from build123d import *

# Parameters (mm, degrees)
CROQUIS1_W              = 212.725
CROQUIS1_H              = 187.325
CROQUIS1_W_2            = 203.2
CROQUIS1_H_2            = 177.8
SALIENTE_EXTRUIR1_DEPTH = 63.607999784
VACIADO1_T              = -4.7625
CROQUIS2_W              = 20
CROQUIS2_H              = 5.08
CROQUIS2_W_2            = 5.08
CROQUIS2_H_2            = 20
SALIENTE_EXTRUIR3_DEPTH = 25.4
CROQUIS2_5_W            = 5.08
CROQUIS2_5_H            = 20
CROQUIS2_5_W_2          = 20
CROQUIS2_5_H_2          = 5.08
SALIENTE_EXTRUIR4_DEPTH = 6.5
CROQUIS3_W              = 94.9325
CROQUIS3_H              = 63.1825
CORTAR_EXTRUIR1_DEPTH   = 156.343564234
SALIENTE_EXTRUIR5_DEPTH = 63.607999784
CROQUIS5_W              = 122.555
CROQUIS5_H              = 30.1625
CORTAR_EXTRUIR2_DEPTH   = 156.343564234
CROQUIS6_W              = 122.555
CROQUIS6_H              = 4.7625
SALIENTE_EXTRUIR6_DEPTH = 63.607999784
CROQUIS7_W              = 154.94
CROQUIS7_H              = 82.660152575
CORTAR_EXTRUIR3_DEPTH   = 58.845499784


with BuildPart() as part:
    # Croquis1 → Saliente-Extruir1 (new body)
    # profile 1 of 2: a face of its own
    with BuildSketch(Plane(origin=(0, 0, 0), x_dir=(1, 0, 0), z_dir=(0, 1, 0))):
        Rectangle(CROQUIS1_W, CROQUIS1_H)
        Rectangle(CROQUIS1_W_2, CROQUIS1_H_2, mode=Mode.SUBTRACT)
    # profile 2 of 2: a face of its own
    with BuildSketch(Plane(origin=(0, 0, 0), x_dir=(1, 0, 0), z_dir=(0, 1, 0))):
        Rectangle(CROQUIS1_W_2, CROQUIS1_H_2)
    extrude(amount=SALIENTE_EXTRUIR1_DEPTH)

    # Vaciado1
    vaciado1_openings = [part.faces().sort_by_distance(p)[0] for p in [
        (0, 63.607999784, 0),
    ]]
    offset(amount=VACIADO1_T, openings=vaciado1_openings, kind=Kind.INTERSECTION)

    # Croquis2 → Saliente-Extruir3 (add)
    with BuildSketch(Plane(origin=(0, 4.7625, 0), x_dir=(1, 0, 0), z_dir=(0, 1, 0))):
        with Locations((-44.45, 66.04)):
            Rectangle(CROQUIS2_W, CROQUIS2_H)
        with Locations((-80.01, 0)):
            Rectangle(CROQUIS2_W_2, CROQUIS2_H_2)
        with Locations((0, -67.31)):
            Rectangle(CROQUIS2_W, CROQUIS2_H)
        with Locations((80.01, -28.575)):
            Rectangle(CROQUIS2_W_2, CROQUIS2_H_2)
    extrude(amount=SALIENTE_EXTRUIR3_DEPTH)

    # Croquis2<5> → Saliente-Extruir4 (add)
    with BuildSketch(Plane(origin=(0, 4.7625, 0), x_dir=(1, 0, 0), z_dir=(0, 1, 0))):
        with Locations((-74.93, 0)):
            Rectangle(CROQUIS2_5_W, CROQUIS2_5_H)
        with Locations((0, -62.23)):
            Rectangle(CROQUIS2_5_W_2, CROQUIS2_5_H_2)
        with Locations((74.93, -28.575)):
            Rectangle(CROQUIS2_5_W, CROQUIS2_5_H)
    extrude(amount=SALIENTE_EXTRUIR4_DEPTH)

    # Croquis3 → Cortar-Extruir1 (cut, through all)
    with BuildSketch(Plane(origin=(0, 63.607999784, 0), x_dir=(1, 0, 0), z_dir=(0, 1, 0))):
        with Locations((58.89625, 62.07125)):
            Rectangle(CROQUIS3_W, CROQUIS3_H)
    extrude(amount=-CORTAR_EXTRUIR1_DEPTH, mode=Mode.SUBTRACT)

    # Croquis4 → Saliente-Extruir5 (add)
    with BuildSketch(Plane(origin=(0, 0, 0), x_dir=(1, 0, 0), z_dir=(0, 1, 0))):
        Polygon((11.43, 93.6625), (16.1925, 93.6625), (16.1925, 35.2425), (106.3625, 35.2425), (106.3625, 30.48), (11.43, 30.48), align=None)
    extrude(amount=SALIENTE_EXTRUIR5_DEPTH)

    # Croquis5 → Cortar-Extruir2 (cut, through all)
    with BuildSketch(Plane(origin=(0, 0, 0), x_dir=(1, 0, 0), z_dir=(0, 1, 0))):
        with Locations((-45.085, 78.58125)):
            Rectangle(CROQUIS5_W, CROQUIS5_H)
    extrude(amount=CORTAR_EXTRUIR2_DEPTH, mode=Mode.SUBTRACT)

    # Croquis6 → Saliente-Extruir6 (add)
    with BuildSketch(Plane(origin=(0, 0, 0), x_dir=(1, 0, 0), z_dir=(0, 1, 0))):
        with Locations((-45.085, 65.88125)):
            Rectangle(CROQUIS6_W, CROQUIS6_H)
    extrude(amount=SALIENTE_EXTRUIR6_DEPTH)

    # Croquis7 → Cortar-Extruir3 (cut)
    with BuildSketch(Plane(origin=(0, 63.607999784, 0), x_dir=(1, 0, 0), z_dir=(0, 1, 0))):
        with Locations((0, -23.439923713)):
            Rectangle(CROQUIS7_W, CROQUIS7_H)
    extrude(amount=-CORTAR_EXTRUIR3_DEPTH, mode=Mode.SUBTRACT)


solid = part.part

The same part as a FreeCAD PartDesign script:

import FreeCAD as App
import Part
import Sketcher
Q = App.Units.Quantity


def faces_at(feature, points):
    """Names of the faces that lie closest to the given points."""
    faces = feature.Shape.Faces
    near = lambda p: min(range(len(faces)), key=lambda i: faces[i].distToShape(Part.Vertex(*p))[0])
    return sorted({f"Face{near(p) + 1}" for p in points})


def add_polygon(sketch, points):
    """Adds a closed chain of lines whose ends are joined by coincident constraints."""
    first, n = sketch.GeometryCount, len(points)
    for a, b in zip(points, points[1:] + points[:1]):
        sketch.addGeometry(Part.LineSegment(App.Vector(*a, 0), App.Vector(*b, 0)), False)
    for i in range(n):
        sketch.addConstraint(Sketcher.Constraint("Coincident", first + i, 2, first + (i + 1) % n, 1))

doc = App.newDocument("Part")
body = doc.addObject("PartDesign::Body", "Body")

sketch1 = body.newObject("Sketcher::SketchObject", "Sketch")
sketch1.AttachmentSupport = (doc.getObject("XZ_Plane"), [""])
sketch1.MapMode = "FlatFace"
add_polygon(sketch1, [(-106, -94), (-106, 94), (106, 94), (106, -94)])
sketch1.addConstraint([
    Sketcher.Constraint("Vertical", 0),
    Sketcher.Constraint("Horizontal", 1),
    Sketcher.Constraint("Vertical", 2),
    Sketcher.Constraint("Horizontal", 3),
    Sketcher.Constraint("Symmetric", 0, 2, 2, 2, -1, 1),
    Sketcher.Constraint("DistanceX", 1, 1, 1, 2, Q("8.375 in")),
    Sketcher.Constraint("DistanceY", 0, 1, 0, 2, Q("7.375 in")),
])
pad1 = body.newObject("PartDesign::Pad", "Pad")
pad1.Profile = sketch1
pad1.Length = 63.608
pad1.Reversed = True
doc.recompute()

thickness = body.newObject("PartDesign::Thickness", "Thickness")
thickness.Base = (pad1, faces_at(pad1, [(0, 63.608, 0)]))
thickness.Value = Q("0.1875 in")
thickness.Reversed = True
thickness.Join = "Intersection"

sketch2 = body.newObject("Sketcher::SketchObject", "Sketch001")
sketch2.AttachmentSupport = (doc.getObject("XZ_Plane"), [""])
sketch2.MapMode = "FlatFace"
sketch2.AttachmentOffset = App.Placement(App.Vector(0, 0, -0.1875 * 25.4), App.Rotation())
add_polygon(sketch2, [(-54, -69), (-54, -64), (-34, -64), (-34, -69)])
add_polygon(sketch2, [(-83, -10), (-83, 10), (-77, 10), (-77, -10)])
add_polygon(sketch2, [(-10, 65), (-10, 70), (10, 70), (10, 65)])
add_polygon(sketch2, [(77, 19), (77, 39), (83, 39), (83, 19)])
sketch2.addConstraint([
    Sketcher.Constraint("Vertical", 0),
    Sketcher.Constraint("Horizontal", 1),
    Sketcher.Constraint("Vertical", 2),
    Sketcher.Constraint("Horizontal", 3),
    Sketcher.Constraint("Vertical", 4),
    Sketcher.Constraint("Horizontal", 5),
    Sketcher.Constraint("Vertical", 6),
    Sketcher.Constraint("Horizontal", 7),
    Sketcher.Constraint("Vertical", 8),
    Sketcher.Constraint("Horizontal", 9),
    Sketcher.Constraint("Vertical", 10),
    Sketcher.Constraint("Horizontal", 11),
    Sketcher.Constraint("Vertical", 12),
    Sketcher.Constraint("Horizontal", 13),
    Sketcher.Constraint("Vertical", 14),
    Sketcher.Constraint("Horizontal", 15),
    Sketcher.Constraint("Equal", 3, 9),
    Sketcher.Constraint("Equal", 7, 13),
    Sketcher.Constraint("Equal", 15, 0),
    Sketcher.Constraint("Equal", 11, 4),
    Sketcher.Constraint("Equal", 2, 8),
    Sketcher.Constraint("Equal", 6, 12),
    Sketcher.Constraint("DistanceX", 5, 1, 5, 2, Q("0.2 in")),
    Sketcher.Constraint("DistanceY", 0, 2, -1, 1, Q("2.5 in")),
    Sketcher.Constraint("DistanceX", 4, 2, -1, 1, Q("3.25 in")),
    Sketcher.Constraint("DistanceY", -1, 1, 8, 2, Q("2.75 in")),
    Sketcher.Constraint("DistanceX", -1, 1, 12, 2, Q("3.05 in")),
    Sketcher.Constraint("DistanceX", 1, 1, 1, 2, Q("20 mm")),
    Sketcher.Constraint("DistanceX", 0, 2, -1, 1, Q("54.45 mm")),
    Sketcher.Constraint("DistanceY", -1, 1, 4, 2, Q("10 mm")),
    Sketcher.Constraint("DistanceX", 8, 2, -1, 1, Q("10 mm")),
    Sketcher.Constraint("DistanceY", -1, 1, 12, 2, Q("38.575 mm")),
])
pad2 = body.newObject("PartDesign::Pad", "Pad001")
pad2.Profile = sketch2
pad2.Length = Q("1 in")
pad2.Reversed = True

sketch3 = body.newObject("Sketcher::SketchObject", "Sketch002")
sketch3.AttachmentSupport = (doc.getObject("XZ_Plane"), [""])
sketch3.MapMode = "FlatFace"
sketch3.AttachmentOffset = App.Placement(App.Vector(0, 0, -0.1875 * 25.4), App.Rotation())
add_polygon(sketch3, [(-77, -10), (-77, 10), (-72, 10), (-72, -10)])
add_polygon(sketch3, [(-10, 60), (-10, 65), (10, 65), (10, 60)])
add_polygon(sketch3, [(72, 19), (72, 39), (77, 39), (77, 19)])
sketch3.addConstraint([
    Sketcher.Constraint("Vertical", 0),
    Sketcher.Constraint("Horizontal", 1),
    Sketcher.Constraint("Vertical", 2),
    Sketcher.Constraint("Horizontal", 3),
    Sketcher.Constraint("Vertical", 4),
    Sketcher.Constraint("Horizontal", 5),
    Sketcher.Constraint("Vertical", 6),
    Sketcher.Constraint("Horizontal", 7),
    Sketcher.Constraint("Vertical", 8),
    Sketcher.Constraint("Horizontal", 9),
    Sketcher.Constraint("Vertical", 10),
    Sketcher.Constraint("Horizontal", 11),
    Sketcher.Constraint("Equal", 3, 9),
    Sketcher.Constraint("Equal", 7, 0),
    Sketcher.Constraint("Equal", 11, 4),
    Sketcher.Constraint("Equal", 2, 8),
    Sketcher.Constraint("DistanceX", 1, 1, 1, 2, Q("0.2 in")),
    Sketcher.Constraint("DistanceX", 1, 2, 8, 2, Q("5.7 in")),
    Sketcher.Constraint("DistanceX", 0, 2, -1, 1, Q("3.05 in")),
    Sketcher.Constraint("DistanceY", -1, 1, 4, 2, Q("2.55 in")),
    Sketcher.Constraint("DistanceY", 1, 2, 8, 2, Q("1.125 in")),
    Sketcher.Constraint("DistanceX", 5, 1, 5, 2, Q("20 mm")),
    Sketcher.Constraint("DistanceY", -1, 1, 0, 2, Q("10 mm")),
    Sketcher.Constraint("DistanceX", 4, 2, -1, 1, Q("10 mm")),
])
pad3 = body.newObject("PartDesign::Pad", "Pad002")
pad3.Profile = sketch3
pad3.Length = 6.5
pad3.Reversed = True

sketch4 = body.newObject("Sketcher::SketchObject", "Sketch003")
sketch4.AttachmentSupport = (doc.getObject("XZ_Plane"), [""])
sketch4.MapMode = "FlatFace"
sketch4.AttachmentOffset = App.Placement(App.Vector(0, 0, -63.608), App.Rotation())
add_polygon(sketch4, [(11, -94), (11, -30), (106, -30), (106, -94)])
sketch4.addConstraint([
    Sketcher.Constraint("Vertical", 0),
    Sketcher.Constraint("Horizontal", 1),
    Sketcher.Constraint("Vertical", 2),
    Sketcher.Constraint("Horizontal", 3),
    Sketcher.Constraint("DistanceY", 0, 2, -1, 1, Q("1.2 in")),
    Sketcher.Constraint("DistanceX", -1, 1, 0, 2, Q("0.45 in")),
    Sketcher.Constraint("DistanceX", 1, 1, 1, 2, Q("3.7375 in")),
    Sketcher.Constraint("DistanceY", 0, 1, 0, 2, Q("2.4875 in")),
])
pocket1 = body.newObject("PartDesign::Pocket", "Pocket")
pocket1.Profile = sketch4
pocket1.Type = "ThroughAll"
pocket1.Reversed = True

sketch5 = body.newObject("Sketcher::SketchObject", "Sketch004")
sketch5.AttachmentSupport = (doc.getObject("XZ_Plane"), [""])
sketch5.MapMode = "FlatFace"
add_polygon(sketch5, [(16.2, -93.7), (11.4, -93.7), (11.4, -30.5), (106.4, -30.5), (106.4, -35.2), (16.2, -35.2)])
sketch5.addConstraint([
    Sketcher.Constraint("Horizontal", 0),
    Sketcher.Constraint("Vertical", 1),
    Sketcher.Constraint("Horizontal", 2),
    Sketcher.Constraint("Vertical", 3),
    Sketcher.Constraint("Horizontal", 4),
    Sketcher.Constraint("Vertical", 5),
    Sketcher.Constraint("Equal", 0, 3),
    Sketcher.Constraint("DistanceY", 5, 2, 5, 1, Q("2.3 in")),
    Sketcher.Constraint("DistanceX", 4, 2, 4, 1, Q("3.55 in")),
    Sketcher.Constraint("DistanceY", 1, 2, -1, 1, Q("1.2 in")),
    Sketcher.Constraint("DistanceX", 0, 2, 0, 1, Q("0.1875 in")),
    Sketcher.Constraint("DistanceX", -1, 1, 0, 2, Q("0.45 in")),
])
pad4 = body.newObject("PartDesign::Pad", "Pad003")
pad4.Profile = sketch5
pad4.Length = 63.608
pad4.Reversed = True

sketch6 = body.newObject("Sketcher::SketchObject", "Sketch005")
sketch6.AttachmentSupport = (doc.getObject("XZ_Plane"), [""])
sketch6.MapMode = "FlatFace"
add_polygon(sketch6, [(-106, -94), (-106, -64), (16, -64), (16, -94)])
sketch6.addConstraint([
    Sketcher.Constraint("Vertical", 0),
    Sketcher.Constraint("Horizontal", 1),
    Sketcher.Constraint("Vertical", 2),
    Sketcher.Constraint("Horizontal", 3),
    Sketcher.Constraint("DistanceY", 0, 2, -1, 1, Q("2.5 in")),
    Sketcher.Constraint("DistanceX", 1, 1, 1, 2, Q("4.825 in")),
    Sketcher.Constraint("DistanceY", 0, 1, 0, 2, Q("1.1875 in")),
    Sketcher.Constraint("DistanceX", 0, 2, -1, 1, Q("4.1875 in")),
])
pocket2 = body.newObject("PartDesign::Pocket", "Pocket001")
pocket2.Profile = sketch6
pocket2.Type = "ThroughAll"

sketch7 = body.newObject("Sketcher::SketchObject", "Sketch006")
sketch7.AttachmentSupport = (doc.getObject("XZ_Plane"), [""])
sketch7.MapMode = "FlatFace"
add_polygon(sketch7, [(-106.4, -68.3), (-106.4, -63.5), (16.2, -63.5), (16.2, -68.3)])
sketch7.addConstraint([
    Sketcher.Constraint("Vertical", 0),
    Sketcher.Constraint("Horizontal", 1),
    Sketcher.Constraint("Vertical", 2),
    Sketcher.Constraint("Horizontal", 3),
    Sketcher.Constraint("DistanceY", 0, 2, -1, 1, Q("2.5 in")),
    Sketcher.Constraint("DistanceX", 1, 1, 1, 2, Q("4.825 in")),
    Sketcher.Constraint("DistanceY", 0, 1, 0, 2, Q("0.1875 in")),
    Sketcher.Constraint("DistanceX", 0, 2, -1, 1, Q("4.1875 in")),
])
pad5 = body.newObject("PartDesign::Pad", "Pad004")
pad5.Profile = sketch7
pad5.Length = 63.608
pad5.Reversed = True

sketch8 = body.newObject("Sketcher::SketchObject", "Sketch007")
sketch8.AttachmentSupport = (doc.getObject("XZ_Plane"), [""])
sketch8.MapMode = "FlatFace"
sketch8.AttachmentOffset = App.Placement(App.Vector(0, 0, -63.608), App.Rotation())
add_polygon(sketch8, [(-77, -18), (-77, 65), (77, 65), (77, -18)])
sketch8.addConstraint([
    Sketcher.Constraint("Vertical", 0),
    Sketcher.Constraint("Horizontal", 1),
    Sketcher.Constraint("Vertical", 2),
    Sketcher.Constraint("Horizontal", 3),
    Sketcher.Constraint("DistanceX", 1, 1, 1, 2, Q("6.1 in")),
    Sketcher.Constraint("DistanceX", 0, 2, -1, 1, Q("3.05 in")),
    Sketcher.Constraint("DistanceY", -1, 1, 0, 2, Q("2.55 in")),
    Sketcher.Constraint("DistanceY", 0, 1, 0, 2, Q("82.660153 mm")),
])
pocket3 = body.newObject("PartDesign::Pocket", "Pocket002")
pocket3.Profile = sketch8
pocket3.Length = 58.8455
pocket3.Reversed = True

doc.recompute()
